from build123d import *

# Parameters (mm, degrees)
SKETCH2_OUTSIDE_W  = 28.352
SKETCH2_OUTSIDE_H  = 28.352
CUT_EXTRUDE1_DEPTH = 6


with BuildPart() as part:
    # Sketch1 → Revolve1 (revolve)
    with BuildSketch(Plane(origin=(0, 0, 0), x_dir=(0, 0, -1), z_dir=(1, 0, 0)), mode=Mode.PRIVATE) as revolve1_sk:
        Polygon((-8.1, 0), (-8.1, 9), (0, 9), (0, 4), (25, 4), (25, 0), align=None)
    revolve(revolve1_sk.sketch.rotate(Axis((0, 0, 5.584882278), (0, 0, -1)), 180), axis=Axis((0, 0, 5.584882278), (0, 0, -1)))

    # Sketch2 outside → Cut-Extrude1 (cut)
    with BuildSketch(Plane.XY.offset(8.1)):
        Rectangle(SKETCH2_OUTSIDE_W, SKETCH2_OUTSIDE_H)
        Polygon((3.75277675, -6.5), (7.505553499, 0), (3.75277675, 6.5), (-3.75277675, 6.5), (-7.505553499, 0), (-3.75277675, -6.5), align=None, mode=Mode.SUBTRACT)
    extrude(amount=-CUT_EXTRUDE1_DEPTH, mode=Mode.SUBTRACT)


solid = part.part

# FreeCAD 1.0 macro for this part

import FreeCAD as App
import Part
import Sketcher
from FreeCAD import Vector
Q = App.Units.Quantity


def add_polygon(sketch, points):
    """Adds a closed chain of lines whose ends are joined by coincident constraints."""
    first, n = sketch.GeometryCount, len(points)
    for a, b in zip(points, points[1:] + points[:1]):
        sketch.addGeometry(Part.LineSegment(App.Vector(*a, 0), App.Vector(*b, 0)), False)
    for i in range(n):
        sketch.addConstraint(Sketcher.Constraint("Coincident", first + i, 2, first + (i + 1) % n, 1))

doc = App.newDocument("Part")
params = doc.addObject("Spreadsheet::Sheet", "Params")
for row, (alias, value) in enumerate([
    ("sketch1_width", "9 mm"),
    ("sketch1_width2", "4 mm"),
    ("sketch1_height", "25 mm"),
    ("sketch1_height2", "33.1 mm"),
    ("revolution_angle", "360 deg"),
    ("pocket1_length", "6 mm"),
], start=1):
    params.set(f"A{row}", alias)
    params.set(f"B{row}", "=" + value)
    params.setAlias(f"B{row}", alias)

body = doc.addObject("PartDesign::Body", "Body")

sketch1 = body.newObject("Sketcher::SketchObject", "Sketch")
sketch1.AttachmentSupport = (doc.getObject("YZ_Plane"), [""])
sketch1.MapMode = "FlatFace"
add_polygon(sketch1, [(9, 8.1), (0, 8.1), (0, -25), (4, -25), (4, 0), (9, 0)])
sketch1.addConstraint(Sketcher.Constraint("Horizontal", 0))
sketch1.addConstraint(Sketcher.Constraint("Vertical", 1))
sketch1.addConstraint(Sketcher.Constraint("Horizontal", 2))
sketch1.addConstraint(Sketcher.Constraint("Vertical", 3))
sketch1.addConstraint(Sketcher.Constraint("Horizontal", 4))
sketch1.addConstraint(Sketcher.Constraint("Vertical", 5))
sketch1.addConstraint(Sketcher.Constraint("PointOnObject", 0, 2, -2))
sketch1.addConstraint(Sketcher.Constraint("PointOnObject", 3, 2, -1))
sketch1.addConstraint(Sketcher.Constraint("DistanceX", 0, 2, 0, 1, 9.0))
sketch1.addConstraint(Sketcher.Constraint("DistanceX", 2, 1, 2, 2, 4.0))
sketch1.addConstraint(Sketcher.Constraint("DistanceY", 3, 1, 3, 2, 25.0))
sketch1.addConstraint(Sketcher.Constraint("DistanceY", 1, 2, 1, 1, 33.1))
sketch1.setExpression("Constraints[14]", "Params.sketch1_width")
sketch1.setExpression("Constraints[15]", "Params.sketch1_width2")
sketch1.setExpression("Constraints[16]", "Params.sketch1_height")
sketch1.setExpression("Constraints[17]", "Params.sketch1_height2")
revolution = body.newObject("PartDesign::Revolution", "Revolution")
revolution.Profile = sketch1
revolution.ReferenceAxis = (sketch1, ["V_Axis"])
revolution.setExpression("Angle", "Params.revolution_angle")

sketch2 = body.newObject("Sketcher::SketchObject", "Sketch001")
sketch2.AttachmentSupport = (doc.getObject("XY_Plane"), [""])
sketch2.MapMode = "FlatFace"
sketch2.AttachmentOffset = App.Placement(Vector(0, 0, 8.1), App.Rotation())
add_polygon(sketch2, [(-14.176, 14.176), (-14.176, -14.176), (14.176, -14.176), (14.176, 14.176)])
add_polygon(sketch2, [(7.505553, 0), (3.752777, -6.5), (-3.752777, -6.5), (-7.505553, 0), (-3.752777, 6.5), (3.752777, 6.5)])
sketch2.addConstraint(Sketcher.Constraint("Vertical", 0))
sketch2.addConstraint(Sketcher.Constraint("Horizontal", 1))
sketch2.addConstraint(Sketcher.Constraint("Vertical", 2))
sketch2.addConstraint(Sketcher.Constraint("Horizontal", 3))
sketch2.addConstraint(Sketcher.Constraint("Horizontal", 5))
sketch2.addConstraint(Sketcher.Constraint("Horizontal", 8))
sketch2.addConstraint(Sketcher.Constraint("Symmetric", 0, 2, 2, 2, -1, 1))
sketch2.addConstraint(Sketcher.Constraint("Symmetric", 4, 2, 7, 2, -1, 1))
sketch2.addConstraint(Sketcher.Constraint("Symmetric", 6, 2, 9, 2, -1, 1))
sketch2.addConstraint(Sketcher.Constraint("PointOnObject", 6, 2, -1))
sketch2.addConstraint(Sketcher.Constraint("Parallel", 6, 9))
sketch2.addConstraint(Sketcher.Constraint("Vertical", 5, 2, 7, 2))
sketch2.addConstraint(Sketcher.Constraint("Equal", 3, 0))
sketch2.addConstraint(Sketcher.Constraint("Angle", 4, Q("-120 deg")))
sketch2.addConstraint(Sketcher.Constraint("DistanceY", 5, 2, 7, 2, 13.0))
sketch2.addConstraint(Sketcher.Constraint("DistanceX", 1, 1, 1, 2, 28.352))
sketch2.addConstraint(Sketcher.Constraint("DistanceX", 5, 2, 5, 1, 7.505554))
pocket1 = body.newObject("PartDesign::Pocket", "Pocket")
pocket1.Profile = sketch2
pocket1.setExpression("Length", "Params.pocket1_length")

doc.recompute()
